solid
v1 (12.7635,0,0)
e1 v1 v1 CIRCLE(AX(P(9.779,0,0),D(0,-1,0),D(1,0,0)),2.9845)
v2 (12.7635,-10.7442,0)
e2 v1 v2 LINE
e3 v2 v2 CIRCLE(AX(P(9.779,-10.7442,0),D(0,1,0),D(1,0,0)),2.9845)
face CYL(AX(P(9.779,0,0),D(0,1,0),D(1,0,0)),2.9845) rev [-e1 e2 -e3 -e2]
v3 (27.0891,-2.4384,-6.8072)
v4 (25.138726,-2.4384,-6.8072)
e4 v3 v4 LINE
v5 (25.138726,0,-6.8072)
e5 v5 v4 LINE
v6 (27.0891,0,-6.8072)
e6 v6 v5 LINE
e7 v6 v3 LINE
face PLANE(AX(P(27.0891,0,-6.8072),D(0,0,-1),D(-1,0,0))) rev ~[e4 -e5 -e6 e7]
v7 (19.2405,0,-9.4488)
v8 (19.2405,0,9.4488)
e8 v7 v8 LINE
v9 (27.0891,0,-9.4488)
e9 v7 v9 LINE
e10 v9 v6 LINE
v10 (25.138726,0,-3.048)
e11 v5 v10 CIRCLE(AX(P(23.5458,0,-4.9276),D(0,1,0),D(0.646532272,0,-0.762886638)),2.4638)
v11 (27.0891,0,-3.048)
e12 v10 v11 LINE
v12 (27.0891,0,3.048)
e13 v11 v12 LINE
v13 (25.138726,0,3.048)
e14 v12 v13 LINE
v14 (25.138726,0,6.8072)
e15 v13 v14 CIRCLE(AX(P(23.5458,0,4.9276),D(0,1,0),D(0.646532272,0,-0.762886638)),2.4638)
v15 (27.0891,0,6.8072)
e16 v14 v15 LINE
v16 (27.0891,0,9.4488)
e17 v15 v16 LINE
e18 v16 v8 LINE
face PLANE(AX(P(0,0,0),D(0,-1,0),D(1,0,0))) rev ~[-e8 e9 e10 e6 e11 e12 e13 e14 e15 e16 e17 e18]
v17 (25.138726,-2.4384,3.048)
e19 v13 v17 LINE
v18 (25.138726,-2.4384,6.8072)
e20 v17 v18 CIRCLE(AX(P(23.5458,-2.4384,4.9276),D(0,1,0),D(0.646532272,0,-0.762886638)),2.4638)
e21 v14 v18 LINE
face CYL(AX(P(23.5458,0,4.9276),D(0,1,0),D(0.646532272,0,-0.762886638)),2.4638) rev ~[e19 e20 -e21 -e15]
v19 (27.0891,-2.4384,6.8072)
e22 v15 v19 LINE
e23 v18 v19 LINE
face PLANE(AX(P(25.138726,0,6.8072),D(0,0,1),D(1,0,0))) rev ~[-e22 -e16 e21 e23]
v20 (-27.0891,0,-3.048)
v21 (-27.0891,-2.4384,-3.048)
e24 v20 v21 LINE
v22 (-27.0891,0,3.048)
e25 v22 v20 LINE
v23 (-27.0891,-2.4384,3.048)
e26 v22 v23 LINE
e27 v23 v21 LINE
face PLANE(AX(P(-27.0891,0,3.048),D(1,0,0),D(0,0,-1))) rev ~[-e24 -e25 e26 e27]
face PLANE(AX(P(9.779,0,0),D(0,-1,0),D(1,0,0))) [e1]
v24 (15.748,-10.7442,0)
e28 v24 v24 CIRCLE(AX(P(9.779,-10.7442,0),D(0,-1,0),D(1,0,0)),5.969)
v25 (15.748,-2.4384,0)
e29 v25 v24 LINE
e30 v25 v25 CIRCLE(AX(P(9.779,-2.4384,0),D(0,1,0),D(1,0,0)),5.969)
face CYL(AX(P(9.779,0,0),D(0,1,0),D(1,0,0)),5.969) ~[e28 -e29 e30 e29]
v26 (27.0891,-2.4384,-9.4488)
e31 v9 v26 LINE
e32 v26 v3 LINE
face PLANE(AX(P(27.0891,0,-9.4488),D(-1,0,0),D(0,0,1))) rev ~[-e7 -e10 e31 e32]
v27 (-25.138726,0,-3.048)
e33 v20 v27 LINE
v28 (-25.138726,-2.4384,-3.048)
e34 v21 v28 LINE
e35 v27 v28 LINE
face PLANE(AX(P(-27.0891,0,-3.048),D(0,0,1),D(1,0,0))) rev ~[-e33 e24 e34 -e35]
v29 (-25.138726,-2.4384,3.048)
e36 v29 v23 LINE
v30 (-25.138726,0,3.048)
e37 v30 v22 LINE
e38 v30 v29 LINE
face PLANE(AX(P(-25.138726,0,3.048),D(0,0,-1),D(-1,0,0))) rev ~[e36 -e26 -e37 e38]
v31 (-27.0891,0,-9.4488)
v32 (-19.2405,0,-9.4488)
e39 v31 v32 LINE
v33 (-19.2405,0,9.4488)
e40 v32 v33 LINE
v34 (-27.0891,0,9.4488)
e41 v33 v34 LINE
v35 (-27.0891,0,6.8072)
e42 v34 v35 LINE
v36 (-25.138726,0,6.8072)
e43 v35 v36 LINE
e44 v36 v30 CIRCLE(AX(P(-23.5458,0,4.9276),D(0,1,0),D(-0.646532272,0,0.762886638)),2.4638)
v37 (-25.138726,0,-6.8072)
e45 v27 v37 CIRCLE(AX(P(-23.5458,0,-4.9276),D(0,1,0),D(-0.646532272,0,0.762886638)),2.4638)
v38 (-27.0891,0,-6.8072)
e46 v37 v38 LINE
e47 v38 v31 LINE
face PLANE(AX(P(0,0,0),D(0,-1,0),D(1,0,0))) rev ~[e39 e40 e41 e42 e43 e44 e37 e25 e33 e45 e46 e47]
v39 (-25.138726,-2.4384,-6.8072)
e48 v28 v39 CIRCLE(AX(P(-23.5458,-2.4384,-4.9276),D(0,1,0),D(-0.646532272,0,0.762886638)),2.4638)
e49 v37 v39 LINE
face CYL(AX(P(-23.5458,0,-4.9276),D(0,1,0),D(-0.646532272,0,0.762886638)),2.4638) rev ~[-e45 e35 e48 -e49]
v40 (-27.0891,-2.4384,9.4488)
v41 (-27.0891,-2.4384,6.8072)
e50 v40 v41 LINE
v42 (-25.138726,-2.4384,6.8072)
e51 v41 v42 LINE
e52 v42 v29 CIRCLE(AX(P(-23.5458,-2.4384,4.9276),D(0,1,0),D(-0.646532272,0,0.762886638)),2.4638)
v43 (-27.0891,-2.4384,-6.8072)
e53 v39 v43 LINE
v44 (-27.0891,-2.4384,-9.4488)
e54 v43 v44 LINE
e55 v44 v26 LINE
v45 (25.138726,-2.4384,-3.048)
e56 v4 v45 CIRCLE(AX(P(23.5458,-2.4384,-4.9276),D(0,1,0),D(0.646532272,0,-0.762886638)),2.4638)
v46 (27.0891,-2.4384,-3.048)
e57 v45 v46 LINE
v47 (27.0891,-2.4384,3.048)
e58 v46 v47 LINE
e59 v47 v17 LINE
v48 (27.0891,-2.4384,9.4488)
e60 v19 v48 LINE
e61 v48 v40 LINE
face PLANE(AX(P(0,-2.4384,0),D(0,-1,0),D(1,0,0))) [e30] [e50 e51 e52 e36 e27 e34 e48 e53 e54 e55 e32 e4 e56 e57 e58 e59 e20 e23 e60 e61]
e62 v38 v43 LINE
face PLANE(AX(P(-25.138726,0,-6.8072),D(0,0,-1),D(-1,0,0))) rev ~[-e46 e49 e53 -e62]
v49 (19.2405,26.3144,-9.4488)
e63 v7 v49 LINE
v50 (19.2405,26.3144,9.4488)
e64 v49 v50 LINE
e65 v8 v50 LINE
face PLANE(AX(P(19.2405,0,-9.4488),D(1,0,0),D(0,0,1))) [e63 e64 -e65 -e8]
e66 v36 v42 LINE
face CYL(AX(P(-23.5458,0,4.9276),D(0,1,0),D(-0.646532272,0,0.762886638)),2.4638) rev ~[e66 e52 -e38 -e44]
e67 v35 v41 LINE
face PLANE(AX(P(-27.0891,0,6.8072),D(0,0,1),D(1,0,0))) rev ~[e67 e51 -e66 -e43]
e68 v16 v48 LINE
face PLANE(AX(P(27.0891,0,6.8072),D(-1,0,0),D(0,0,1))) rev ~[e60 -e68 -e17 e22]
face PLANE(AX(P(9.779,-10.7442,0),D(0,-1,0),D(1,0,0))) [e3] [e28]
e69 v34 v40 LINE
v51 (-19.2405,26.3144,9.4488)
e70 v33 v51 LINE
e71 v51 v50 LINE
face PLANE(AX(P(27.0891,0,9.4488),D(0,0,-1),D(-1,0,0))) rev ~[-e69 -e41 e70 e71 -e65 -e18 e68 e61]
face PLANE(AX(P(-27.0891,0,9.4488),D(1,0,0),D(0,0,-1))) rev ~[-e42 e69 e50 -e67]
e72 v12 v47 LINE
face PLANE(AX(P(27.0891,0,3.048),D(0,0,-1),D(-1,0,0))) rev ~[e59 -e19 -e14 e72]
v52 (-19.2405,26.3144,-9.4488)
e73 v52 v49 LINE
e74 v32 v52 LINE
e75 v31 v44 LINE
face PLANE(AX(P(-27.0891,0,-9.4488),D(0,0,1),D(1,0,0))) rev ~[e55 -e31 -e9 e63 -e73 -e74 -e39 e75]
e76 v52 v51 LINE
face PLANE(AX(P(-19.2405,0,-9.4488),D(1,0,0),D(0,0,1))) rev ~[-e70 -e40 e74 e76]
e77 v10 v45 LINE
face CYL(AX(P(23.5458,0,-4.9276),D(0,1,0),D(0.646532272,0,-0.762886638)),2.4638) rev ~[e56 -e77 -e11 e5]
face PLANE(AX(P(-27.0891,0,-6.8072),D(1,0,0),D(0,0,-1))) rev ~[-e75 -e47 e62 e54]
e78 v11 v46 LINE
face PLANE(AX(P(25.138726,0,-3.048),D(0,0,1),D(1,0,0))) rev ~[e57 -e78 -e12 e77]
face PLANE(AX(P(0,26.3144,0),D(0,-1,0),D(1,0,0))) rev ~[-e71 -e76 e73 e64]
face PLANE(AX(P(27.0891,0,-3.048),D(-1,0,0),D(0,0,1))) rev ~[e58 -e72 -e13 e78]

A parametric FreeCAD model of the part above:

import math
import FreeCAD as App
import Part
import Sketcher
Q = App.Units.Quantity

doc = App.newDocument("Part")
body = doc.addObject("PartDesign::Body", "Body")

sketch1 = body.newObject("Sketcher::SketchObject", "Sketch")
sketch1.AttachmentSupport = (doc.getObject("XZ_Plane"), [""])
sketch1.MapMode = "FlatFace"
sketch1.addGeometry([
    Part.LineSegment(App.Vector(-19, 9, 0), App.Vector(-19, -9, 0)),
    Part.LineSegment(App.Vector(-19, -9, 0), App.Vector(19, -9, 0)),
    Part.LineSegment(App.Vector(19, -9, 0), App.Vector(19, 9, 0)),
    Part.LineSegment(App.Vector(19, 9, 0), App.Vector(-19, 9, 0)),
], False)
sketch1.addConstraint([
    Sketcher.Constraint("Coincident", 0, 2, 1, 1),
    Sketcher.Constraint("Coincident", 1, 2, 2, 1),
    Sketcher.Constraint("Coincident", 2, 2, 3, 1),
    Sketcher.Constraint("Coincident", 3, 2, 0, 1),
    Sketcher.Constraint("Vertical", 0),
    Sketcher.Constraint("Horizontal", 1),
    Sketcher.Constraint("Vertical", 2),
    Sketcher.Constraint("Horizontal", 3),
    Sketcher.Constraint("Symmetric", 0, 2, 2, 2, -1, 1),
    Sketcher.Constraint("DistanceX", 1, 1, 1, 2, Q("1.515 in")),
    Sketcher.Constraint("DistanceY", 0, 2, 0, 1, Q("0.744 in")),
])
pad1 = body.newObject("PartDesign::Pad", "Pad")
pad1.Profile = sketch1
pad1.Length = Q("1.036 in")
pad1.Reversed = True

sketch2 = body.newObject("Sketcher::SketchObject", "Sketch001")
sketch2.AttachmentSupport = (doc.getObject("XZ_Plane"), [""])
sketch2.MapMode = "FlatFace"
sketch2.addGeometry([
    Part.LineSegment(App.Vector(27.1, 6.8, 0), App.Vector(27.1, 9.4, 0)),
    Part.LineSegment(App.Vector(27.1, 9.4, 0), App.Vector(-27.1, 9.4, 0)),
    Part.LineSegment(App.Vector(-27.1, 9.4, 0), App.Vector(-27.1, 6.8, 0)),
    Part.LineSegment(App.Vector(-27.1, 6.8, 0), App.Vector(-25.1, 6.8, 0)),
    Part.ArcOfCircle(Part.Circle(App.Vector(-23.5, 4.9, 0), App.Vector(0, 0, 1), 2.5), math.radians(-130), math.radians(130)),
    Part.LineSegment(App.Vector(-25.1, 3, 0), App.Vector(-27.1, 3, 0)),
    Part.LineSegment(App.Vector(-27.1, 3, 0), App.Vector(-27.1, -3, 0)),
    Part.LineSegment(App.Vector(-27.1, -3, 0), App.Vector(-25.1, -3, 0)),
    Part.ArcOfCircle(Part.Circle(App.Vector(-23.5, -4.9, 0), App.Vector(0, 0, 1), 2.5), math.radians(-130), math.radians(130)),
    Part.LineSegment(App.Vector(-25.1, -6.8, 0), App.Vector(-27.1, -6.8, 0)),
    Part.LineSegment(App.Vector(-27.1, -6.8, 0), App.Vector(-27.1, -9.4, 0)),
    Part.LineSegment(App.Vector(-27.1, -9.4, 0), App.Vector(27.1, -9.4, 0)),
    Part.LineSegment(App.Vector(27.1, -9.4, 0), App.Vector(27.1, -6.8, 0)),
    Part.LineSegment(App.Vector(27.1, -6.8, 0), App.Vector(25.1, -6.8, 0)),
    Part.ArcOfCircle(Part.Circle(App.Vector(23.5, -4.9, 0), App.Vector(0, 0, 1), 2.5), math.radians(50), math.radians(310)),
    Part.LineSegment(App.Vector(25.1, -3, 0), App.Vector(27.1, -3, 0)),
    Part.LineSegment(App.Vector(27.1, -3, 0), App.Vector(27.1, 3, 0)),
    Part.LineSegment(App.Vector(27.1, 3, 0), App.Vector(25.1, 3, 0)),
    Part.ArcOfCircle(Part.Circle(App.Vector(23.5, 4.9, 0), App.Vector(0, 0, 1), 2.5), math.radians(50), math.radians(310)),
    Part.LineSegment(App.Vector(25.1, 6.8, 0), App.Vector(27.1, 6.8, 0)),
], False)
sketch2.addConstraint([
    Sketcher.Constraint("Coincident", 0, 2, 1, 1),
    Sketcher.Constraint("Coincident", 1, 2, 2, 1),
    Sketcher.Constraint("Coincident", 2, 2, 3, 1),
    Sketcher.Constraint("Coincident", 3, 2, 4, 2),
    Sketcher.Constraint("Coincident", 4, 1, 5, 1),
    Sketcher.Constraint("Coincident", 5, 2, 6, 1),
    Sketcher.Constraint("Coincident", 6, 2, 7, 1),
    Sketcher.Constraint("Coincident", 7, 2, 8, 2),
    Sketcher.Constraint("Coincident", 8, 1, 9, 1),
    Sketcher.Constraint("Coincident", 9, 2, 10, 1),
    Sketcher.Constraint("Coincident", 10, 2, 11, 1),
    Sketcher.Constraint("Coincident", 11, 2, 12, 1),
    Sketcher.Constraint("Coincident", 12, 2, 13, 1),
    Sketcher.Constraint("Coincident", 13, 2, 14, 2),
    Sketcher.Constraint("Coincident", 14, 1, 15, 1),
    Sketcher.Constraint("Coincident", 15, 2, 16, 1),
    Sketcher.Constraint("Coincident", 16, 2, 17, 1),
    Sketcher.Constraint("Coincident", 17, 2, 18, 2),
    Sketcher.Constraint("Coincident", 18, 1, 19, 1),
    Sketcher.Constraint("Coincident", 19, 2, 0, 1),
    Sketcher.Constraint("Vertical", 0),
    Sketcher.Constraint("Horizontal", 1),
    Sketcher.Constraint("Vertical", 2),
    Sketcher.Constraint("Horizontal", 3),
    Sketcher.Constraint("Horizontal", 5),
    Sketcher.Constraint("Vertical", 6),
    Sketcher.Constraint("Horizontal", 7),
    Sketcher.Constraint("Horizontal", 9),
    Sketcher.Constraint("Vertical", 10),
    Sketcher.Constraint("Horizontal", 11),
    Sketcher.Constraint("Vertical", 12),
    Sketcher.Constraint("Horizontal", 13),
    Sketcher.Constraint("Horizontal", 15),
    Sketcher.Constraint("Vertical", 16),
    Sketcher.Constraint("Horizontal", 17),
    Sketcher.Constraint("Horizontal", 19),
    Sketcher.Constraint("Equal", 4, 8),
    Sketcher.Constraint("Equal", 8, 14),
    Sketcher.Constraint("Equal", 14, 18),
    Sketcher.Constraint("Symmetric", 4, 3, 14, 3, -1, 1),
    Sketcher.Constraint("Symmetric", 8, 3, 18, 3, -1, 1),
    Sketcher.Constraint("Symmetric", 0, 2, 10, 2, -1, 1),
    Sketcher.Constraint("Symmetric", 2, 2, 12, 2, -1, 1),
    Sketcher.Constraint("Symmetric", 5, 2, 15, 2, -1, 1),
    Sketcher.Constraint("Symmetric", 8, 3, 14, 3, -2),
    Sketcher.Constraint("Symmetric", 9, 2, 12, 2, -2),
    Sketcher.Constraint("Horizontal", 7, 2, 14, 1),
    Sketcher.Constraint("Horizontal", 5, 2, 16, 2),
    Sketcher.Constraint("Horizontal", 3, 2, 18, 1),
    Sketcher.Constraint("Vertical", 3, 2, 4, 1),
    Sketcher.Constraint("Vertical", 2, 2, 5, 2),
    Sketcher.Constraint("Radius", 4, Q("0.097 in")),
    Sketcher.Constraint("DistanceY", 6, 2, 6, 1, Q("0.24 in")),
    Sketcher.Constraint("DistanceX", 1, 2, 1, 1, Q("2.133 in")),
    Sketcher.Constraint("DistanceY", 0, 1, 0, 2, Q("0.104 in")),
    Sketcher.Constraint("DistanceY", 12, 2, 0, 2, Q("0.64 in")),
    Sketcher.Constraint("DistanceX", 4, 3, -1, 1, Q("0.927 in")),
])
pad2 = body.newObject("PartDesign::Pad", "Pad001")
pad2.Profile = sketch2
pad2.Length = Q("0.096 in")

sketch3 = body.newObject("Sketcher::SketchObject", "Sketch002")
sketch3.AttachmentSupport = (doc.getObject("XZ_Plane"), [""])
sketch3.MapMode = "FlatFace"
sketch3.addGeometry(Part.Circle(App.Vector(10, 0, 0), App.Vector(0, 0, 1), 6), False)
sketch3.addConstraint([
    Sketcher.Constraint("PointOnObject", 0, 3, -1),
    Sketcher.Constraint("Diameter", 0, Q("0.47 in")),
    Sketcher.Constraint("DistanceX", -1, 1, 0, 3, Q("0.385 in")),
])
pad3 = body.newObject("PartDesign::Pad", "Pad002")
pad3.Profile = sketch3
pad3.Length = Q("0.423 in")

sketch4 = body.newObject("Sketcher::SketchObject", "Sketch003")
sketch4.AttachmentSupport = (doc.getObject("XZ_Plane"), [""])
sketch4.MapMode = "FlatFace"
sketch4.addGeometry(Part.Circle(App.Vector(9.8, 0, 0), App.Vector(0, 0, 1), 3), False)
sketch4.addConstraint([
    Sketcher.Constraint("PointOnObject", 0, 3, -1),
    Sketcher.Constraint("Diameter", 0, Q("0.235 in")),
    Sketcher.Constraint("DistanceX", -1, 1, 0, 3, Q("0.385 in")),
])
pocket1 = body.newObject("PartDesign::Pocket", "Pocket")
pocket1.Profile = sketch4
pocket1.Length = Q("0.559 in")
pocket1.Reversed = True

doc.recompute()
